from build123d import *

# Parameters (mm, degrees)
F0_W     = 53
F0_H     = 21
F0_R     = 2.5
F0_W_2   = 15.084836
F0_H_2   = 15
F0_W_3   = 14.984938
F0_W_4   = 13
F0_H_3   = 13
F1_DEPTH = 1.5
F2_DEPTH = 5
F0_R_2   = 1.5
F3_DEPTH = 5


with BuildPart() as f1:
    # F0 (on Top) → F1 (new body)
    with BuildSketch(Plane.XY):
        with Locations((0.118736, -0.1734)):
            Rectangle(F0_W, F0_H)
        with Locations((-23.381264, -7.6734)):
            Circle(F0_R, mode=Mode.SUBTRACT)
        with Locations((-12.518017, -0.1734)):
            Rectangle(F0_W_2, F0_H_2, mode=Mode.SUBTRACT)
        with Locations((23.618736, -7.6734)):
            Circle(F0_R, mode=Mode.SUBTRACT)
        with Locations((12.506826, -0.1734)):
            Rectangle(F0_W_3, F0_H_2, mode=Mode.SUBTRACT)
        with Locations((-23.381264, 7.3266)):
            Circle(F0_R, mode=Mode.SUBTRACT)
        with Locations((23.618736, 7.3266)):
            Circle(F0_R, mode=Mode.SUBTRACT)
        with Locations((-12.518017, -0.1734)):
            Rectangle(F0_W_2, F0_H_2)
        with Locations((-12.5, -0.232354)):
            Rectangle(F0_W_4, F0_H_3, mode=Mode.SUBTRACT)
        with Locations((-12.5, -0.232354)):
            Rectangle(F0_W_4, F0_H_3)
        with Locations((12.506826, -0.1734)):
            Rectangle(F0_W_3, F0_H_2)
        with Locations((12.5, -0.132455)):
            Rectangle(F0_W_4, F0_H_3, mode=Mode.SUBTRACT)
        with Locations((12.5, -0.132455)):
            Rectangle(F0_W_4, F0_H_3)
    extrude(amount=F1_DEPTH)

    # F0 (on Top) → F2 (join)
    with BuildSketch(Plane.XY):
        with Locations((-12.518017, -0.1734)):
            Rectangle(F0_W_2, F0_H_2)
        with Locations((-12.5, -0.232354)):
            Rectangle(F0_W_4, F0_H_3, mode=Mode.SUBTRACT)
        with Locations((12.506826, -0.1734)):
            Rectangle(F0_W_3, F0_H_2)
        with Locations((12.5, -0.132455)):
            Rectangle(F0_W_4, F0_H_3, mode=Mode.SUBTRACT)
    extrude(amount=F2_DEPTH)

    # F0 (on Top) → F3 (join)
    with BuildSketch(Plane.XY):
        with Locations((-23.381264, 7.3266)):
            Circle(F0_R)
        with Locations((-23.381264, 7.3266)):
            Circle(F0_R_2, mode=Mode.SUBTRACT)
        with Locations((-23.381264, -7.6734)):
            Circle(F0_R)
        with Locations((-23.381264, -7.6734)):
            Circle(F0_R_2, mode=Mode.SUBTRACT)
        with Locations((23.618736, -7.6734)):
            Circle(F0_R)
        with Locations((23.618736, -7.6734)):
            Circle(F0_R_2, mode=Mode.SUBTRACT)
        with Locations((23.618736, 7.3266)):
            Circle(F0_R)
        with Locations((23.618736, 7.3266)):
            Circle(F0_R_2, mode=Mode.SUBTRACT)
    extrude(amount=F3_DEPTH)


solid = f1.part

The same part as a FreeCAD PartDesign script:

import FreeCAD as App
import Part
import Sketcher

doc = App.newDocument("Part")
body = doc.addObject("PartDesign::Body", "Body")

# Sketch on XY plane
sketch1 = body.newObject("Sketcher::SketchObject", "Sketch")
sketch1.AttachmentSupport = (doc.getObject("XY_Plane"), [""])
sketch1.MapMode = "FlatFace"
sketch1.addGeometry(Part.LineSegment(App.Vector(-26.4, 10.3, 0), App.Vector(-26.4, -10.7, 0)), False)
sketch1.addGeometry(Part.LineSegment(App.Vector(-26.4, -10.7, 0), App.Vector(26.6, -10.7, 0)), False)
sketch1.addGeometry(Part.LineSegment(App.Vector(26.6, -10.7, 0), App.Vector(26.6, 10.3, 0)), False)
sketch1.addGeometry(Part.LineSegment(App.Vector(26.6, 10.3, 0), App.Vector(-26.4, 10.3, 0)), False)
sketch1.addGeometry(Part.Circle(App.Vector(-23.4, -7.7, 0), App.Vector(0, 0, 1), 2.5), False)
sketch1.addGeometry(Part.Circle(App.Vector(23.6, -7.7, 0), App.Vector(0, 0, 1), 2.5), False)
sketch1.addGeometry(Part.Circle(App.Vector(-23.4, 7.3, 0), App.Vector(0, 0, 1), 2.5), False)
sketch1.addGeometry(Part.Circle(App.Vector(23.6, 7.3, 0), App.Vector(0, 0, 1), 2.5), False)
sketch1.addConstraint(Sketcher.Constraint("Coincident", 0, 2, 1, 1))
sketch1.addConstraint(Sketcher.Constraint("Coincident", 1, 2, 2, 1))
sketch1.addConstraint(Sketcher.Constraint("Coincident", 2, 2, 3, 1))
sketch1.addConstraint(Sketcher.Constraint("Coincident", 3, 2, 0, 1))
sketch1.addConstraint(Sketcher.Constraint("Vertical", 0))
sketch1.addConstraint(Sketcher.Constraint("Horizontal", 1))
sketch1.addConstraint(Sketcher.Constraint("Vertical", 2))
sketch1.addConstraint(Sketcher.Constraint("Horizontal", 3))
sketch1.addConstraint(Sketcher.Constraint("Equal", 4, 5))
sketch1.addConstraint(Sketcher.Constraint("Equal", 5, 6))
sketch1.addConstraint(Sketcher.Constraint("Equal", 6, 7))
sketch1.addConstraint(Sketcher.Constraint("Horizontal", 4, 3, 5, 3))
sketch1.addConstraint(Sketcher.Constraint("Horizontal", 6, 3, 7, 3))
sketch1.addConstraint(Sketcher.Constraint("Vertical", 4, 3, 6, 3))
sketch1.addConstraint(Sketcher.Constraint("Vertical", 5, 3, 7, 3))
sketch1.addConstraint(Sketcher.Constraint("Diameter", 4, 5.0))
sketch1.addConstraint(Sketcher.Constraint("DistanceX", 1, 1, 1, 2, 53.0))
sketch1.addConstraint(Sketcher.Constraint("DistanceY", 0, 2, 0, 1, 21.0))
sketch1.addConstraint(Sketcher.Constraint("DistanceX", 4, 3, 5, 3, 47.0))
sketch1.addConstraint(Sketcher.Constraint("DistanceY", 4, 3, 6, 3, 15.0))
sketch1.addConstraint(Sketcher.Constraint("DistanceX", 0, 2, 4, 3, 3.0))
sketch1.addConstraint(Sketcher.Constraint("DistanceY", 0, 2, 4, 3, 3.0))
sketch1.addConstraint(Sketcher.Constraint("DistanceY", 4, 3, -1, 1, 7.6734))
sketch1.addConstraint(Sketcher.Constraint("DistanceX", 4, 3, -1, 1, 23.381264))
pad1 = body.newObject("PartDesign::Pad", "Pad")
pad1.Profile = sketch1
pad1.Length = 1.5

# Sketch on XY plane
sketch2 = body.newObject("Sketcher::SketchObject", "Sketch001")
sketch2.AttachmentSupport = (doc.getObject("XY_Plane"), [""])
sketch2.MapMode = "FlatFace"
sketch2.addGeometry(Part.LineSegment(App.Vector(-20, 7, 0), App.Vector(-20, -8, 0)), False)
sketch2.addGeometry(Part.LineSegment(App.Vector(-20, -8, 0), App.Vector(-5, -8, 0)), False)
sketch2.addGeometry(Part.LineSegment(App.Vector(-5, -8, 0), App.Vector(-5, 7, 0)), False)
sketch2.addGeometry(Part.LineSegment(App.Vector(-5, 7, 0), App.Vector(-20, 7, 0)), False)
sketch2.addGeometry(Part.LineSegment(App.Vector(-6, -7, 0), App.Vector(-19, -7, 0)), False)
sketch2.addGeometry(Part.LineSegment(App.Vector(-19, -7, 0), App.Vector(-19, 6, 0)), False)
sketch2.addGeometry(Part.LineSegment(App.Vector(-19, 6, 0), App.Vector(-6, 6, 0)), False)
sketch2.addGeometry(Part.LineSegment(App.Vector(-6, 6, 0), App.Vector(-6, -7, 0)), False)
sketch2.addGeometry(Part.LineSegment(App.Vector(5, 7, 0), App.Vector(5, -8, 0)), False)
sketch2.addGeometry(Part.LineSegment(App.Vector(5, -8, 0), App.Vector(20, -8, 0)), False)
sketch2.addGeometry(Part.LineSegment(App.Vector(20, -8, 0), App.Vector(20, 7, 0)), False)
sketch2.addGeometry(Part.LineSegment(App.Vector(20, 7, 0), App.Vector(5, 7, 0)), False)
sketch2.addGeometry(Part.LineSegment(App.Vector(19, -7, 0), App.Vector(6, -7, 0)), False)
sketch2.addGeometry(Part.LineSegment(App.Vector(6, -7, 0), App.Vector(6, 6, 0)), False)
sketch2.addGeometry(Part.LineSegment(App.Vector(6, 6, 0), App.Vector(19, 6, 0)), False)
sketch2.addGeometry(Part.LineSegment(App.Vector(19, 6, 0), App.Vector(19, -7, 0)), False)
sketch2.addConstraint(Sketcher.Constraint("Coincident", 0, 2, 1, 1))
sketch2.addConstraint(Sketcher.Constraint("Coincident", 1, 2, 2, 1))
sketch2.addConstraint(Sketcher.Constraint("Coincident", 2, 2, 3, 1))
sketch2.addConstraint(Sketcher.Constraint("Coincident", 3, 2, 0, 1))
sketch2.addConstraint(Sketcher.Constraint("Coincident", 4, 2, 5, 1))
sketch2.addConstraint(Sketcher.Constraint("Coincident", 5, 2, 6, 1))
sketch2.addConstraint(Sketcher.Constraint("Coincident", 6, 2, 7, 1))
sketch2.addConstraint(Sketcher.Constraint("Coincident", 7, 2, 4, 1))
sketch2.addConstraint(Sketcher.Constraint("Coincident", 8, 2, 9, 1))
sketch2.addConstraint(Sketcher.Constraint("Coincident", 9, 2, 10, 1))
sketch2.addConstraint(Sketcher.Constraint("Coincident", 10, 2, 11, 1))
sketch2.addConstraint(Sketcher.Constraint("Coincident", 11, 2, 8, 1))
sketch2.addConstraint(Sketcher.Constraint("Coincident", 12, 2, 13, 1))
sketch2.addConstraint(Sketcher.Constraint("Coincident", 13, 2, 14, 1))
sketch2.addConstraint(Sketcher.Constraint("Coincident", 14, 2, 15, 1))
sketch2.addConstraint(Sketcher.Constraint("Coincident", 15, 2, 12, 1))
sketch2.addConstraint(Sketcher.Constraint("Vertical", 0))
sketch2.addConstraint(Sketcher.Constraint("Horizontal", 1))
sketch2.addConstraint(Sketcher.Constraint("Vertical", 2))
sketch2.addConstraint(Sketcher.Constraint("Horizontal", 3))
sketch2.addConstraint(Sketcher.Constraint("Horizontal", 4))
sketch2.addConstraint(Sketcher.Constraint("Vertical", 5))
sketch2.addConstraint(Sketcher.Constraint("Horizontal", 6))
sketch2.addConstraint(Sketcher.Constraint("Vertical", 7))
sketch2.addConstraint(Sketcher.Constraint("Vertical", 8))
sketch2.addConstraint(Sketcher.Constraint("Horizontal", 9))
sketch2.addConstraint(Sketcher.Constraint("Vertical", 10))
sketch2.addConstraint(Sketcher.Constraint("Horizontal", 11))
sketch2.addConstraint(Sketcher.Constraint("Horizontal", 12))
sketch2.addConstraint(Sketcher.Constraint("Vertical", 13))
sketch2.addConstraint(Sketcher.Constraint("Horizontal", 14))
sketch2.addConstraint(Sketcher.Constraint("Vertical", 15))
sketch2.addConstraint(Sketcher.Constraint("Horizontal", 1, 2, 8, 2))
sketch2.addConstraint(Sketcher.Constraint("Horizontal", 3, 2, 10, 2))
sketch2.addConstraint(Sketcher.Constraint("Equal", 6, 12))
sketch2.addConstraint(Sketcher.Constraint("Equal", 14, 5))
sketch2.addConstraint(Sketcher.Constraint("Equal", 7, 13))
sketch2.addConstraint(Sketcher.Constraint("DistanceX", 4, 2, 4, 1, 13.0))
sketch2.addConstraint(Sketcher.Constraint("DistanceY", 0, 2, 0, 1, 15.0))
sketch2.addConstraint(Sketcher.Constraint("DistanceX", 4, 2, -1, 1, 19.0))
sketch2.addConstraint(Sketcher.Constraint("DistanceX", -1, 1, 12, 2, 6.0))
sketch2.addConstraint(Sketcher.Constraint("DistanceY", 0, 2, -1, 1, 7.6734))
sketch2.addConstraint(Sketcher.Constraint("DistanceX", 1, 2, -1, 1, 4.975599))
sketch2.addConstraint(Sketcher.Constraint("DistanceY", 7, 2, 12, 2, 0.099899))
sketch2.addConstraint(Sketcher.Constraint("DistanceX", 1, 1, 1, 2, 15.084836))
sketch2.addConstraint(Sketcher.Constraint("DistanceX", 9, 1, 9, 2, 14.984938))
sketch2.addConstraint(Sketcher.Constraint("DistanceY", 4, 2, -1, 1, 6.732354))
sketch2.addConstraint(Sketcher.Constraint("DistanceX", -1, 1, 8, 2, 5.014357))
pad2 = body.newObject("PartDesign::Pad", "Pad001")
pad2.Profile = sketch2
pad2.Length = 5

# Sketch on XY plane
sketch3 = body.newObject("Sketcher::SketchObject", "Sketch002")
sketch3.AttachmentSupport = (doc.getObject("XY_Plane"), [""])
sketch3.MapMode = "FlatFace"
sketch3.addGeometry(Part.Circle(App.Vector(-23.4, 7.3, 0), App.Vector(0, 0, 1), 2.5), False)
sketch3.addGeometry(Part.Circle(App.Vector(-23.4, 7.3, 0), App.Vector(0, 0, 1), 1.5), False)
sketch3.addGeometry(Part.Circle(App.Vector(-23.4, -7.7, 0), App.Vector(0, 0, 1), 2.5), False)
sketch3.addGeometry(Part.Circle(App.Vector(-23.4, -7.7, 0), App.Vector(0, 0, 1), 1.5), False)
sketch3.addGeometry(Part.Circle(App.Vector(23.6, -7.7, 0), App.Vector(0, 0, 1), 2.5), False)
sketch3.addGeometry(Part.Circle(App.Vector(23.6, -7.7, 0), App.Vector(0, 0, 1), 1.5), False)
sketch3.addGeometry(Part.Circle(App.Vector(23.6, 7.3, 0), App.Vector(0, 0, 1), 2.5), False)
sketch3.addGeometry(Part.Circle(App.Vector(23.6, 7.3, 0), App.Vector(0, 0, 1), 1.5), False)
sketch3.addConstraint(Sketcher.Constraint("Coincident", 1, 3, 0, 3))
sketch3.addConstraint(Sketcher.Constraint("Coincident", 3, 3, 2, 3))
sketch3.addConstraint(Sketcher.Constraint("Coincident", 5, 3, 4, 3))
sketch3.addConstraint(Sketcher.Constraint("Coincident", 7, 3, 6, 3))
sketch3.addConstraint(Sketcher.Constraint("Equal", 0, 2))
sketch3.addConstraint(Sketcher.Constraint("Equal", 1, 3))
sketch3.addConstraint(Sketcher.Constraint("Equal", 2, 4))
sketch3.addConstraint(Sketcher.Constraint("Equal", 3, 5))
sketch3.addConstraint(Sketcher.Constraint("Equal", 4, 6))
sketch3.addConstraint(Sketcher.Constraint("Equal", 5, 7))
sketch3.addConstraint(Sketcher.Constraint("Horizontal", 3, 3, 4, 3))
sketch3.addConstraint(Sketcher.Constraint("Horizontal", 1, 3, 6, 3))
sketch3.addConstraint(Sketcher.Constraint("Vertical", 1, 3, 2, 3))
sketch3.addConstraint(Sketcher.Constraint("Vertical", 5, 3, 6, 3))
sketch3.addConstraint(Sketcher.Constraint("Diameter", 0, 5.0))
sketch3.addConstraint(Sketcher.Constraint("Diameter", 1, 3.0))
sketch3.addConstraint(Sketcher.Constraint("DistanceY", 2, 3, 0, 3, 15.0))
sketch3.addConstraint(Sketcher.Constraint("DistanceX", 2, 3, 4, 3, 47.0))
sketch3.addConstraint(Sketcher.Constraint("DistanceY", -1, 1, 0, 3, 7.3266))
sketch3.addConstraint(Sketcher.Constraint("DistanceX", 0, 3, -1, 1, 23.381264))
pad3 = body.newObject("PartDesign::Pad", "Pad002")
pad3.Profile = sketch3
pad3.Length = 5

doc.recompute()
